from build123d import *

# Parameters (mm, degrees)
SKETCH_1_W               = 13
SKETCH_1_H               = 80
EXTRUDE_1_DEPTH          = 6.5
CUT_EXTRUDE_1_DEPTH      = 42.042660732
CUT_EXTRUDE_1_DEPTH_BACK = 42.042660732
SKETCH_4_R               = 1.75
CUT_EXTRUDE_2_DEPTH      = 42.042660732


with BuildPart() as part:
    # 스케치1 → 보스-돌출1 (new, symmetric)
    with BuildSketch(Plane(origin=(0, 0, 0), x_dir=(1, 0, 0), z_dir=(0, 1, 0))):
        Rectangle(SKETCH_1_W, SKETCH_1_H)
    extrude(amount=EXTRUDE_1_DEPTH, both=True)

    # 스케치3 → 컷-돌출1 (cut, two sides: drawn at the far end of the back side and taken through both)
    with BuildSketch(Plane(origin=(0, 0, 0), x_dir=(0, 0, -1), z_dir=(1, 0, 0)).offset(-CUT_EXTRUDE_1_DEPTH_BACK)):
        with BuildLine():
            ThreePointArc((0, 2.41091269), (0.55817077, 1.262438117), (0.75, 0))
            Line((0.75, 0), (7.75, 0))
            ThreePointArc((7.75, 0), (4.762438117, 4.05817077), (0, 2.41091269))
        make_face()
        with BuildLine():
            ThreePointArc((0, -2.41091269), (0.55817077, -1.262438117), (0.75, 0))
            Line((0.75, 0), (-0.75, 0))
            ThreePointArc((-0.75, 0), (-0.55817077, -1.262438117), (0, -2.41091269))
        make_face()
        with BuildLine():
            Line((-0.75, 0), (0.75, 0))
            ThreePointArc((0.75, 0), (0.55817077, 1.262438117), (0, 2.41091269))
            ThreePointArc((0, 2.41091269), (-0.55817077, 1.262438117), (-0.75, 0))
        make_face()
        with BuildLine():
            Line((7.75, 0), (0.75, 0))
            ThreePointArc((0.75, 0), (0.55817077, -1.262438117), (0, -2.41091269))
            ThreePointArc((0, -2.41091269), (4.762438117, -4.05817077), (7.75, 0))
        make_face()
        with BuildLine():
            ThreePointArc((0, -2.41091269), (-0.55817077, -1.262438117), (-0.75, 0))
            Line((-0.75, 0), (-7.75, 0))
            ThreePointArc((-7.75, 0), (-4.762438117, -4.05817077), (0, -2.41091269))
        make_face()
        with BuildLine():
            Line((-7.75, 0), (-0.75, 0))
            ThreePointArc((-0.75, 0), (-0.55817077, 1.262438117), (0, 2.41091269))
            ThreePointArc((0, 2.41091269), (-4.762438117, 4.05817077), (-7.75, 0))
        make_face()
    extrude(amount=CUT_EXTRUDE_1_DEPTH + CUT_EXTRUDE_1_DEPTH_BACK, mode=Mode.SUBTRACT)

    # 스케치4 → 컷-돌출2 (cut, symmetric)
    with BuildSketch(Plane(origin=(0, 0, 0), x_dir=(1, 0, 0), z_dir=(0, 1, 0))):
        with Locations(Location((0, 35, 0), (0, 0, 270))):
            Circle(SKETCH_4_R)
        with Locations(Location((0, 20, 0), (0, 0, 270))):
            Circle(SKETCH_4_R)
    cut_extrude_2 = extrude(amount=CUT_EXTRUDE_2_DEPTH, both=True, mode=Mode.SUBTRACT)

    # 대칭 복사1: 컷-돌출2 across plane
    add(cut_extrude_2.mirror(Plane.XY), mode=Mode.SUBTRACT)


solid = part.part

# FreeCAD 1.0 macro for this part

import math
import FreeCAD as App
import Part
import Sketcher
from FreeCAD import Vector


def add_polygon(sketch, points):
    """Adds a closed chain of lines whose ends are joined by coincident constraints."""
    first, n = sketch.GeometryCount, len(points)
    for a, b in zip(points, points[1:] + points[:1]):
        sketch.addGeometry(Part.LineSegment(App.Vector(*a, 0), App.Vector(*b, 0)), False)
    for i in range(n):
        sketch.addConstraint(Sketcher.Constraint("Coincident", first + i, 2, first + (i + 1) % n, 1))

doc = App.newDocument("Part")
params = doc.addObject("Spreadsheet::Sheet", "Params")
for row, (alias, value) in enumerate([
    ("sketch1_width", "13 mm"),
    ("sketch1_height", "80 mm"),
    ("pad1_length", "13 mm"),
    ("sketch2_radius", "4.25 mm"),
    ("sketch3_diameter", "3.5 mm"),
    ("pocket2_length", "84.085321 mm"),
], start=1):
    params.set(f"A{row}", alias)
    params.set(f"B{row}", "=" + value)
    params.setAlias(f"B{row}", alias)

body = doc.addObject("PartDesign::Body", "Body")

# Sketch on XZ plane
sketch1 = doc.addObject("Sketcher::SketchObject", "Sketch")
body.addObject(sketch1)
sketch1.AttachmentSupport = (doc.XZ_Plane, [""])
sketch1.MapMode = "FlatFace"
add_polygon(sketch1, [(-6, -40), (-6, 40), (6, 40), (6, -40)])  # lines 0-3
sketch1.addConstraint(Sketcher.Constraint("Vertical", 0))
sketch1.addConstraint(Sketcher.Constraint("Horizontal", 1))
sketch1.addConstraint(Sketcher.Constraint("Vertical", 2))
sketch1.addConstraint(Sketcher.Constraint("Horizontal", 3))
sketch1.addConstraint(Sketcher.Constraint("Symmetric", 0, 2, 2, 2, -1, 1))
sketch1.addConstraint(Sketcher.Constraint("DistanceX", 1, 1, 1, 2, 13.0))
sketch1.addConstraint(Sketcher.Constraint("DistanceY", 0, 1, 0, 2, 80.0))
sketch1.setExpression("Constraints[9]", "Params.sketch1_width")
sketch1.setExpression("Constraints[10]", "Params.sketch1_height")
pad1 = doc.addObject("PartDesign::Pad", "Pad")
body.addObject(pad1)
pad1.Profile = sketch1
pad1.setExpression("Length", "Params.pad1_length")
pad1.Midplane = True

# Sketch on YZ plane
sketch2 = doc.addObject("Sketcher::SketchObject", "Sketch001")
body.addObject(sketch2)
sketch2.AttachmentSupport = (doc.YZ_Plane, [""])
sketch2.MapMode = "FlatFace"
sketch2.addGeometry(Part.ArcOfCircle(Part.Circle(Vector(0, -3.5, 0), Vector(0, 0, 1), 4.2), math.radians(125), math.radians(270)), False)
sketch2.addGeometry(Part.ArcOfCircle(Part.Circle(Vector(0, -3.5, 0), Vector(0, 0, 1), 4.2), math.radians(-90), math.radians(55)), False)
sketch2.addGeometry(Part.ArcOfCircle(Part.Circle(Vector(0, 3.5, 0), Vector(0, 0, 1), 4.2), math.radians(-55), math.radians(90)), False)
sketch2.addGeometry(Part.ArcOfCircle(Part.Circle(Vector(0, 3.5, 0), Vector(0, 0, 1), 4.2), math.radians(90), math.radians(235)), False)
sketch2.addConstraint(Sketcher.Constraint("Tangent", 0, 2, 1, 1))
sketch2.addConstraint(Sketcher.Constraint("Coincident", 1, 2, 2, 1))
sketch2.addConstraint(Sketcher.Constraint("Tangent", 2, 2, 3, 1))
sketch2.addConstraint(Sketcher.Constraint("Coincident", 3, 2, 0, 1))
sketch2.addConstraint(Sketcher.Constraint("Equal", 0, 1))
sketch2.addConstraint(Sketcher.Constraint("Equal", 1, 2))
sketch2.addConstraint(Sketcher.Constraint("Equal", 2, 3))
sketch2.addConstraint(Sketcher.Constraint("Symmetric", 0, 3, 2, 3, -1, 1))
sketch2.addConstraint(Sketcher.Constraint("PointOnObject", 0, 3, -2))
sketch2.addConstraint(Sketcher.Constraint("PointOnObject", 0, 2, -2))
sketch2.addConstraint(Sketcher.Constraint("PointOnObject", 2, 2, -2))
sketch2.addConstraint(Sketcher.Constraint("Radius", 0, 4.25))
sketch2.addConstraint(Sketcher.Constraint("DistanceY", 0, 3, 2, 3, 7.0))
sketch2.setExpression("Constraints[11]", "Params.sketch2_radius")
pocket1 = doc.addObject("PartDesign::Pocket", "Pocket")
body.addObject(pocket1)
pocket1.Profile = sketch2
pocket1.Type = "ThroughAll"
pocket1.Midplane = True

# Sketch on XZ plane
sketch3 = doc.addObject("Sketcher::SketchObject", "Sketch002")
body.addObject(sketch3)
sketch3.AttachmentSupport = (doc.XZ_Plane, [""])
sketch3.MapMode = "FlatFace"
sketch3.addGeometry(Part.Circle(Vector(0, -35, 0), Vector(0, 0, 1), 1.8), False)
sketch3.addGeometry(Part.Circle(Vector(0, -20, 0), Vector(0, 0, 1), 1.8), False)
sketch3.addConstraint(Sketcher.Constraint("Equal", 0, 1))
sketch3.addConstraint(Sketcher.Constraint("PointOnObject", 0, 3, -2))
sketch3.addConstraint(Sketcher.Constraint("PointOnObject", 1, 3, -2))
sketch3.addConstraint(Sketcher.Constraint("Diameter", 0, 3.5))
sketch3.addConstraint(Sketcher.Constraint("DistanceY", 0, 3, -1, 1, 35.0))
sketch3.addConstraint(Sketcher.Constraint("DistanceY", 1, 3, -1, 1, 20.0))
sketch3.setExpression("Constraints[3]", "Params.sketch3_diameter")
pocket2 = doc.addObject("PartDesign::Pocket", "Pocket001")
body.addObject(pocket2)
pocket2.Profile = sketch3
pocket2.setExpression("Length", "Params.pocket2_length")
pocket2.Midplane = True
doc.recompute()

mirrored = doc.addObject("PartDesign::Mirrored", "Mirrored")
body.addObject(mirrored)
mirrored.Originals = [pocket2]
mirrored.MirrorPlane = (doc.XY_Plane, [""])
body.Tip = mirrored

doc.recompute()
